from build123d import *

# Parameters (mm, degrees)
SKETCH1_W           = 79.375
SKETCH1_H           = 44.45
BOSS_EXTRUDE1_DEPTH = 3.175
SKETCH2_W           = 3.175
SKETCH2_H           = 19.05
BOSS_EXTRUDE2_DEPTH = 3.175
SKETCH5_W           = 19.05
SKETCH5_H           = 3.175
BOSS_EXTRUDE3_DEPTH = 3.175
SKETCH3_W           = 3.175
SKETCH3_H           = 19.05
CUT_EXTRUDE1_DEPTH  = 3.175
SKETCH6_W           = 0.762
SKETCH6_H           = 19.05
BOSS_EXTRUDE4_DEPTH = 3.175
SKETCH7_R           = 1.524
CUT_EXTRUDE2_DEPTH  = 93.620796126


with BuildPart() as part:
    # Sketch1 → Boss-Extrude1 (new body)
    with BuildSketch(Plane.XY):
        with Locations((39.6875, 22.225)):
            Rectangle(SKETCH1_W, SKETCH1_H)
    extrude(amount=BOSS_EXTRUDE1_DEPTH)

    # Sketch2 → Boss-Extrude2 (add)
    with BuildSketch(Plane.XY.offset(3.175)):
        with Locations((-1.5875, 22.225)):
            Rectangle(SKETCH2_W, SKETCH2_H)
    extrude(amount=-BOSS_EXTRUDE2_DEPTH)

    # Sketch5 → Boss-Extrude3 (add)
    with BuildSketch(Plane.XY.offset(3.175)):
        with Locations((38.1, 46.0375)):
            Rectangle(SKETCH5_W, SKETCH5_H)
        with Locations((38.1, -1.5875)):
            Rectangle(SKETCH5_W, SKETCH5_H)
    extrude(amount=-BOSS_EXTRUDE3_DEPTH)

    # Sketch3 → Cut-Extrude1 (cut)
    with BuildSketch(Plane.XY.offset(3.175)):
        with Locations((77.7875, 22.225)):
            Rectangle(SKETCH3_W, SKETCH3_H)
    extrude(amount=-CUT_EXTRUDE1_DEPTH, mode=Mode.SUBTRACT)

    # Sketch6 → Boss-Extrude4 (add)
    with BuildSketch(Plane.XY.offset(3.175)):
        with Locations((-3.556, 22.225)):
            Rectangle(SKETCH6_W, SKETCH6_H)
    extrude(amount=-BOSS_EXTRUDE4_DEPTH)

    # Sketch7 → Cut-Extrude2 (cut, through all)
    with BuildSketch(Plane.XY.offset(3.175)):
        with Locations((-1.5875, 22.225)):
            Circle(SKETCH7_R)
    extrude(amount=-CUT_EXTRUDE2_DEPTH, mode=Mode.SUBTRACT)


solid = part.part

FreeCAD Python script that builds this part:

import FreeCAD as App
import Part
import Sketcher

V = App.Vector
Q = App.Units.Quantity


def add_polygon(sketch, points):
    """Adds a closed chain of lines whose ends are joined by coincident constraints."""
    first, n = sketch.GeometryCount, len(points)
    for a, b in zip(points, points[1:] + points[:1]):
        sketch.addGeometry(Part.LineSegment(App.Vector(*a, 0), App.Vector(*b, 0)), False)
    for i in range(n):
        sketch.addConstraint(Sketcher.Constraint("Coincident", first + i, 2, first + (i + 1) % n, 1))

doc = App.newDocument("Part")
body = doc.addObject("PartDesign::Body", "Body")

sketch1 = body.newObject("Sketcher::SketchObject", "Sketch")
sketch1.AttachmentSupport = (doc.getObject("XY_Plane"), [""])
sketch1.MapMode = "FlatFace"
add_polygon(sketch1, [(0, 44), (0, 0), (79, 0), (79, 44)])
sketch1.addConstraint(Sketcher.Constraint("Vertical", 0))
sketch1.addConstraint(Sketcher.Constraint("Horizontal", 1))
sketch1.addConstraint(Sketcher.Constraint("Vertical", 2))
sketch1.addConstraint(Sketcher.Constraint("Horizontal", 3))
sketch1.addConstraint(Sketcher.Constraint("Coincident", 0, 2, -1, 1))
sketch1.addConstraint(Sketcher.Constraint("DistanceY", 0, 2, 0, 1, Q("1.75 in")))
sketch1.addConstraint(Sketcher.Constraint("DistanceX", 1, 1, 1, 2, Q("3.125 in")))
pad1 = body.newObject("PartDesign::Pad", "Pad")
pad1.Profile = sketch1
pad1.Length = Q("0.125 in")

sketch2 = body.newObject("Sketcher::SketchObject", "Sketch001")
sketch2.AttachmentSupport = (doc.getObject("XY_Plane"), [""])
sketch2.MapMode = "FlatFace"
sketch2.AttachmentOffset = App.Placement(V(0, 0, 0.125 * 25.4), App.Rotation())
add_polygon(sketch2, [(-3.2, 31.8), (-3.2, 12.7), (0, 12.7), (0, 31.8)])
sketch2.addConstraint(Sketcher.Constraint("Vertical", 0))
sketch2.addConstraint(Sketcher.Constraint("Horizontal", 1))
sketch2.addConstraint(Sketcher.Constraint("Vertical", 2))
sketch2.addConstraint(Sketcher.Constraint("Horizontal", 3))
sketch2.addConstraint(Sketcher.Constraint("PointOnObject", 1, 2, -2))
sketch2.addConstraint(Sketcher.Constraint("DistanceY", 0, 2, 0, 1, Q("0.75 in")))
sketch2.addConstraint(Sketcher.Constraint("DistanceY", -1, 1, 0, 2, Q("0.5 in")))
sketch2.addConstraint(Sketcher.Constraint("DistanceX", 1, 1, 1, 2, Q("0.125 in")))
pad2 = body.newObject("PartDesign::Pad", "Pad001")
pad2.Profile = sketch2
pad2.Length = Q("0.125 in")
pad2.Reversed = True

sketch3 = body.newObject("Sketcher::SketchObject", "Sketch002")
sketch3.AttachmentSupport = (doc.getObject("XY_Plane"), [""])
sketch3.MapMode = "FlatFace"
sketch3.AttachmentOffset = App.Placement(V(0, 0, 0.125 * 25.4), App.Rotation())
add_polygon(sketch3, [(28.6, 47.6), (28.6, 44.5), (47.6, 44.5), (47.6, 47.6)])
add_polygon(sketch3, [(28.6, 0), (28.6, -3.2), (47.6, -3.2), (47.6, 0)])
sketch3.addConstraint(Sketcher.Constraint("Vertical", 0))
sketch3.addConstraint(Sketcher.Constraint("Horizontal", 1))
sketch3.addConstraint(Sketcher.Constraint("Vertical", 2))
sketch3.addConstraint(Sketcher.Constraint("Horizontal", 3))
sketch3.addConstraint(Sketcher.Constraint("Vertical", 4))
sketch3.addConstraint(Sketcher.Constraint("Horizontal", 5))
sketch3.addConstraint(Sketcher.Constraint("Vertical", 6))
sketch3.addConstraint(Sketcher.Constraint("Horizontal", 7))
sketch3.addConstraint(Sketcher.Constraint("PointOnObject", 6, 2, -1))
sketch3.addConstraint(Sketcher.Constraint("Vertical", 3, 2, 4, 2))
sketch3.addConstraint(Sketcher.Constraint("Vertical", 2, 2, 5, 2))
sketch3.addConstraint(Sketcher.Constraint("Equal", 2, 4))
sketch3.addConstraint(Sketcher.Constraint("DistanceY", 4, 2, 3, 2, Q("2 in")))
sketch3.addConstraint(Sketcher.Constraint("DistanceX", 1, 1, 1, 2, Q("0.75 in")))
sketch3.addConstraint(Sketcher.Constraint("DistanceY", 0, 2, 0, 1, Q("0.125 in")))
sketch3.addConstraint(Sketcher.Constraint("DistanceX", -1, 1, 0, 2, Q("1.125 in")))
pad3 = body.newObject("PartDesign::Pad", "Pad002")
pad3.Profile = sketch3
pad3.Length = Q("0.125 in")
pad3.Reversed = True

sketch4 = body.newObject("Sketcher::SketchObject", "Sketch003")
sketch4.AttachmentSupport = (doc.getObject("XY_Plane"), [""])
sketch4.MapMode = "FlatFace"
sketch4.AttachmentOffset = App.Placement(V(0, 0, 0.125 * 25.4), App.Rotation())
add_polygon(sketch4, [(76.2, 31.8), (76.2, 12.7), (79.4, 12.7), (79.4, 31.8)])
sketch4.addConstraint(Sketcher.Constraint("Vertical", 0))
sketch4.addConstraint(Sketcher.Constraint("Horizontal", 1))
sketch4.addConstraint(Sketcher.Constraint("Vertical", 2))
sketch4.addConstraint(Sketcher.Constraint("Horizontal", 3))
sketch4.addConstraint(Sketcher.Constraint("DistanceX", -1, 1, 0, 2, Q("3 in")))
sketch4.addConstraint(Sketcher.Constraint("DistanceY", 0, 2, 0, 1, Q("0.75 in")))
sketch4.addConstraint(Sketcher.Constraint("DistanceY", -1, 1, 0, 2, Q("0.5 in")))
sketch4.addConstraint(Sketcher.Constraint("DistanceX", 1, 1, 1, 2, Q("0.125 in")))
pocket1 = body.newObject("PartDesign::Pocket", "Pocket")
pocket1.Profile = sketch4
pocket1.Length = Q("0.125 in")

sketch5 = body.newObject("Sketcher::SketchObject", "Sketch004")
sketch5.AttachmentSupport = (doc.getObject("XY_Plane"), [""])
sketch5.MapMode = "FlatFace"
sketch5.AttachmentOffset = App.Placement(V(0, 0, 0.125 * 25.4), App.Rotation())
add_polygon(sketch5, [(-3.9, 31.8), (-3.9, 12.7), (-3.2, 12.7), (-3.2, 31.8)])
sketch5.addConstraint(Sketcher.Constraint("Vertical", 0))
sketch5.addConstraint(Sketcher.Constraint("Horizontal", 1))
sketch5.addConstraint(Sketcher.Constraint("Vertical", 2))
sketch5.addConstraint(Sketcher.Constraint("Horizontal", 3))
sketch5.addConstraint(Sketcher.Constraint("DistanceX", 1, 1, 1, 2, Q("0.03 in")))
sketch5.addConstraint(Sketcher.Constraint("DistanceY", 0, 2, 0, 1, Q("0.75 in")))
sketch5.addConstraint(Sketcher.Constraint("DistanceY", -1, 1, 0, 2, Q("0.5 in")))
sketch5.addConstraint(Sketcher.Constraint("DistanceX", 0, 2, -1, 1, Q("0.155 in")))
pad4 = body.newObject("PartDesign::Pad", "Pad003")
pad4.Profile = sketch5
pad4.Length = Q("0.125 in")
pad4.Reversed = True

sketch6 = body.newObject("Sketcher::SketchObject", "Sketch005")
sketch6.AttachmentSupport = (doc.getObject("XY_Plane"), [""])
sketch6.MapMode = "FlatFace"
sketch6.AttachmentOffset = App.Placement(V(0, 0, 0.125 * 25.4), App.Rotation())
sketch6.addGeometry(Part.Circle(V(-1.6, 22.2, 0), V(0, 0, 1), 1.5), False)
sketch6.addConstraint(Sketcher.Constraint("Diameter", 0, Q("0.12 in")))
sketch6.addConstraint(Sketcher.Constraint("DistanceX", 0, 3, -1, 1, Q("0.0625 in")))
sketch6.addConstraint(Sketcher.Constraint("DistanceY", -1, 1, 0, 3, Q("0.875 in")))
pocket2 = body.newObject("PartDesign::Pocket", "Pocket001")
pocket2.Profile = sketch6
pocket2.Type = "ThroughAll"

doc.recompute()
